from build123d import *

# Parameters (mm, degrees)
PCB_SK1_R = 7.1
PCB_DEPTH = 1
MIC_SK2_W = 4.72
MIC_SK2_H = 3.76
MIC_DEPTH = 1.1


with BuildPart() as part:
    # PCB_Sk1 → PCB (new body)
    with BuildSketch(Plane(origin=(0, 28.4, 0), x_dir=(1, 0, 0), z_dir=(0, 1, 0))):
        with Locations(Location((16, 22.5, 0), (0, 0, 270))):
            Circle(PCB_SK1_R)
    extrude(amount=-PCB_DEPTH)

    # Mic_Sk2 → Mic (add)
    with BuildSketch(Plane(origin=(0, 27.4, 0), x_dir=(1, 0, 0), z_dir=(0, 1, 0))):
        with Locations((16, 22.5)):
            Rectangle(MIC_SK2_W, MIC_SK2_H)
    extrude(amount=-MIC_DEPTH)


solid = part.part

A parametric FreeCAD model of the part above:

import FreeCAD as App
import Part
import Sketcher
Q = App.Units.Quantity

doc = App.newDocument("Part")
body = doc.addObject("PartDesign::Body", "Body")

sketch1 = body.newObject("Sketcher::SketchObject", "Sketch")
sketch1.AttachmentSupport = (doc.getObject("XZ_Plane"), [""])
sketch1.MapMode = "FlatFace"
sketch1.AttachmentOffset = App.Placement(App.Vector(0, 0, -28.4), App.Rotation())
sketch1.addGeometry(Part.Circle(App.Vector(16, -22, 0), App.Vector(0, 0, 1), 7), False)
sketch1.addConstraint(Sketcher.Constraint("Diameter", 0, Q("14.2 mm")))
sketch1.addConstraint(Sketcher.Constraint("DistanceX", -1, 1, 0, 3, Q("16 mm")))
sketch1.addConstraint(Sketcher.Constraint("DistanceY", 0, 3, -1, 1, Q("22.5 mm")))
pad1 = body.newObject("PartDesign::Pad", "Pad")
pad1.Profile = sketch1
pad1.Length = 1

sketch2 = body.newObject("Sketcher::SketchObject", "Sketch001")
sketch2.AttachmentSupport = (doc.getObject("XZ_Plane"), [""])
sketch2.MapMode = "FlatFace"
sketch2.AttachmentOffset = App.Placement(App.Vector(0, 0, -27.4), App.Rotation())
sketch2.addGeometry(Part.LineSegment(App.Vector(13.6, -24.4, 0), App.Vector(13.6, -20.6, 0)), False)
sketch2.addGeometry(Part.LineSegment(App.Vector(13.6, -20.6, 0), App.Vector(18.4, -20.6, 0)), False)
sketch2.addGeometry(Part.LineSegment(App.Vector(18.4, -20.6, 0), App.Vector(18.4, -24.4, 0)), False)
sketch2.addGeometry(Part.LineSegment(App.Vector(18.4, -24.4, 0), App.Vector(13.6, -24.4, 0)), False)
sketch2.addConstraint(Sketcher.Constraint("Coincident", 0, 2, 1, 1))
sketch2.addConstraint(Sketcher.Constraint("Coincident", 1, 2, 2, 1))
sketch2.addConstraint(Sketcher.Constraint("Coincident", 2, 2, 3, 1))
sketch2.addConstraint(Sketcher.Constraint("Coincident", 3, 2, 0, 1))
sketch2.addConstraint(Sketcher.Constraint("Vertical", 0))
sketch2.addConstraint(Sketcher.Constraint("Horizontal", 1))
sketch2.addConstraint(Sketcher.Constraint("Vertical", 2))
sketch2.addConstraint(Sketcher.Constraint("Horizontal", 3))
sketch2.addConstraint(Sketcher.Constraint("DistanceX", 1, 1, 1, 2, Q("4.72 mm")))
sketch2.addConstraint(Sketcher.Constraint("DistanceY", 0, 1, 0, 2, Q("3.76 mm")))
sketch2.addConstraint(Sketcher.Constraint("DistanceX", -1, 1, 0, 2, Q("13.64 mm")))
sketch2.addConstraint(Sketcher.Constraint("DistanceY", 0, 2, -1, 1, Q("20.62 mm")))
pad2 = body.newObject("PartDesign::Pad", "Pad001")
pad2.Profile = sketch2
pad2.Length = 1.1

doc.recompute()
